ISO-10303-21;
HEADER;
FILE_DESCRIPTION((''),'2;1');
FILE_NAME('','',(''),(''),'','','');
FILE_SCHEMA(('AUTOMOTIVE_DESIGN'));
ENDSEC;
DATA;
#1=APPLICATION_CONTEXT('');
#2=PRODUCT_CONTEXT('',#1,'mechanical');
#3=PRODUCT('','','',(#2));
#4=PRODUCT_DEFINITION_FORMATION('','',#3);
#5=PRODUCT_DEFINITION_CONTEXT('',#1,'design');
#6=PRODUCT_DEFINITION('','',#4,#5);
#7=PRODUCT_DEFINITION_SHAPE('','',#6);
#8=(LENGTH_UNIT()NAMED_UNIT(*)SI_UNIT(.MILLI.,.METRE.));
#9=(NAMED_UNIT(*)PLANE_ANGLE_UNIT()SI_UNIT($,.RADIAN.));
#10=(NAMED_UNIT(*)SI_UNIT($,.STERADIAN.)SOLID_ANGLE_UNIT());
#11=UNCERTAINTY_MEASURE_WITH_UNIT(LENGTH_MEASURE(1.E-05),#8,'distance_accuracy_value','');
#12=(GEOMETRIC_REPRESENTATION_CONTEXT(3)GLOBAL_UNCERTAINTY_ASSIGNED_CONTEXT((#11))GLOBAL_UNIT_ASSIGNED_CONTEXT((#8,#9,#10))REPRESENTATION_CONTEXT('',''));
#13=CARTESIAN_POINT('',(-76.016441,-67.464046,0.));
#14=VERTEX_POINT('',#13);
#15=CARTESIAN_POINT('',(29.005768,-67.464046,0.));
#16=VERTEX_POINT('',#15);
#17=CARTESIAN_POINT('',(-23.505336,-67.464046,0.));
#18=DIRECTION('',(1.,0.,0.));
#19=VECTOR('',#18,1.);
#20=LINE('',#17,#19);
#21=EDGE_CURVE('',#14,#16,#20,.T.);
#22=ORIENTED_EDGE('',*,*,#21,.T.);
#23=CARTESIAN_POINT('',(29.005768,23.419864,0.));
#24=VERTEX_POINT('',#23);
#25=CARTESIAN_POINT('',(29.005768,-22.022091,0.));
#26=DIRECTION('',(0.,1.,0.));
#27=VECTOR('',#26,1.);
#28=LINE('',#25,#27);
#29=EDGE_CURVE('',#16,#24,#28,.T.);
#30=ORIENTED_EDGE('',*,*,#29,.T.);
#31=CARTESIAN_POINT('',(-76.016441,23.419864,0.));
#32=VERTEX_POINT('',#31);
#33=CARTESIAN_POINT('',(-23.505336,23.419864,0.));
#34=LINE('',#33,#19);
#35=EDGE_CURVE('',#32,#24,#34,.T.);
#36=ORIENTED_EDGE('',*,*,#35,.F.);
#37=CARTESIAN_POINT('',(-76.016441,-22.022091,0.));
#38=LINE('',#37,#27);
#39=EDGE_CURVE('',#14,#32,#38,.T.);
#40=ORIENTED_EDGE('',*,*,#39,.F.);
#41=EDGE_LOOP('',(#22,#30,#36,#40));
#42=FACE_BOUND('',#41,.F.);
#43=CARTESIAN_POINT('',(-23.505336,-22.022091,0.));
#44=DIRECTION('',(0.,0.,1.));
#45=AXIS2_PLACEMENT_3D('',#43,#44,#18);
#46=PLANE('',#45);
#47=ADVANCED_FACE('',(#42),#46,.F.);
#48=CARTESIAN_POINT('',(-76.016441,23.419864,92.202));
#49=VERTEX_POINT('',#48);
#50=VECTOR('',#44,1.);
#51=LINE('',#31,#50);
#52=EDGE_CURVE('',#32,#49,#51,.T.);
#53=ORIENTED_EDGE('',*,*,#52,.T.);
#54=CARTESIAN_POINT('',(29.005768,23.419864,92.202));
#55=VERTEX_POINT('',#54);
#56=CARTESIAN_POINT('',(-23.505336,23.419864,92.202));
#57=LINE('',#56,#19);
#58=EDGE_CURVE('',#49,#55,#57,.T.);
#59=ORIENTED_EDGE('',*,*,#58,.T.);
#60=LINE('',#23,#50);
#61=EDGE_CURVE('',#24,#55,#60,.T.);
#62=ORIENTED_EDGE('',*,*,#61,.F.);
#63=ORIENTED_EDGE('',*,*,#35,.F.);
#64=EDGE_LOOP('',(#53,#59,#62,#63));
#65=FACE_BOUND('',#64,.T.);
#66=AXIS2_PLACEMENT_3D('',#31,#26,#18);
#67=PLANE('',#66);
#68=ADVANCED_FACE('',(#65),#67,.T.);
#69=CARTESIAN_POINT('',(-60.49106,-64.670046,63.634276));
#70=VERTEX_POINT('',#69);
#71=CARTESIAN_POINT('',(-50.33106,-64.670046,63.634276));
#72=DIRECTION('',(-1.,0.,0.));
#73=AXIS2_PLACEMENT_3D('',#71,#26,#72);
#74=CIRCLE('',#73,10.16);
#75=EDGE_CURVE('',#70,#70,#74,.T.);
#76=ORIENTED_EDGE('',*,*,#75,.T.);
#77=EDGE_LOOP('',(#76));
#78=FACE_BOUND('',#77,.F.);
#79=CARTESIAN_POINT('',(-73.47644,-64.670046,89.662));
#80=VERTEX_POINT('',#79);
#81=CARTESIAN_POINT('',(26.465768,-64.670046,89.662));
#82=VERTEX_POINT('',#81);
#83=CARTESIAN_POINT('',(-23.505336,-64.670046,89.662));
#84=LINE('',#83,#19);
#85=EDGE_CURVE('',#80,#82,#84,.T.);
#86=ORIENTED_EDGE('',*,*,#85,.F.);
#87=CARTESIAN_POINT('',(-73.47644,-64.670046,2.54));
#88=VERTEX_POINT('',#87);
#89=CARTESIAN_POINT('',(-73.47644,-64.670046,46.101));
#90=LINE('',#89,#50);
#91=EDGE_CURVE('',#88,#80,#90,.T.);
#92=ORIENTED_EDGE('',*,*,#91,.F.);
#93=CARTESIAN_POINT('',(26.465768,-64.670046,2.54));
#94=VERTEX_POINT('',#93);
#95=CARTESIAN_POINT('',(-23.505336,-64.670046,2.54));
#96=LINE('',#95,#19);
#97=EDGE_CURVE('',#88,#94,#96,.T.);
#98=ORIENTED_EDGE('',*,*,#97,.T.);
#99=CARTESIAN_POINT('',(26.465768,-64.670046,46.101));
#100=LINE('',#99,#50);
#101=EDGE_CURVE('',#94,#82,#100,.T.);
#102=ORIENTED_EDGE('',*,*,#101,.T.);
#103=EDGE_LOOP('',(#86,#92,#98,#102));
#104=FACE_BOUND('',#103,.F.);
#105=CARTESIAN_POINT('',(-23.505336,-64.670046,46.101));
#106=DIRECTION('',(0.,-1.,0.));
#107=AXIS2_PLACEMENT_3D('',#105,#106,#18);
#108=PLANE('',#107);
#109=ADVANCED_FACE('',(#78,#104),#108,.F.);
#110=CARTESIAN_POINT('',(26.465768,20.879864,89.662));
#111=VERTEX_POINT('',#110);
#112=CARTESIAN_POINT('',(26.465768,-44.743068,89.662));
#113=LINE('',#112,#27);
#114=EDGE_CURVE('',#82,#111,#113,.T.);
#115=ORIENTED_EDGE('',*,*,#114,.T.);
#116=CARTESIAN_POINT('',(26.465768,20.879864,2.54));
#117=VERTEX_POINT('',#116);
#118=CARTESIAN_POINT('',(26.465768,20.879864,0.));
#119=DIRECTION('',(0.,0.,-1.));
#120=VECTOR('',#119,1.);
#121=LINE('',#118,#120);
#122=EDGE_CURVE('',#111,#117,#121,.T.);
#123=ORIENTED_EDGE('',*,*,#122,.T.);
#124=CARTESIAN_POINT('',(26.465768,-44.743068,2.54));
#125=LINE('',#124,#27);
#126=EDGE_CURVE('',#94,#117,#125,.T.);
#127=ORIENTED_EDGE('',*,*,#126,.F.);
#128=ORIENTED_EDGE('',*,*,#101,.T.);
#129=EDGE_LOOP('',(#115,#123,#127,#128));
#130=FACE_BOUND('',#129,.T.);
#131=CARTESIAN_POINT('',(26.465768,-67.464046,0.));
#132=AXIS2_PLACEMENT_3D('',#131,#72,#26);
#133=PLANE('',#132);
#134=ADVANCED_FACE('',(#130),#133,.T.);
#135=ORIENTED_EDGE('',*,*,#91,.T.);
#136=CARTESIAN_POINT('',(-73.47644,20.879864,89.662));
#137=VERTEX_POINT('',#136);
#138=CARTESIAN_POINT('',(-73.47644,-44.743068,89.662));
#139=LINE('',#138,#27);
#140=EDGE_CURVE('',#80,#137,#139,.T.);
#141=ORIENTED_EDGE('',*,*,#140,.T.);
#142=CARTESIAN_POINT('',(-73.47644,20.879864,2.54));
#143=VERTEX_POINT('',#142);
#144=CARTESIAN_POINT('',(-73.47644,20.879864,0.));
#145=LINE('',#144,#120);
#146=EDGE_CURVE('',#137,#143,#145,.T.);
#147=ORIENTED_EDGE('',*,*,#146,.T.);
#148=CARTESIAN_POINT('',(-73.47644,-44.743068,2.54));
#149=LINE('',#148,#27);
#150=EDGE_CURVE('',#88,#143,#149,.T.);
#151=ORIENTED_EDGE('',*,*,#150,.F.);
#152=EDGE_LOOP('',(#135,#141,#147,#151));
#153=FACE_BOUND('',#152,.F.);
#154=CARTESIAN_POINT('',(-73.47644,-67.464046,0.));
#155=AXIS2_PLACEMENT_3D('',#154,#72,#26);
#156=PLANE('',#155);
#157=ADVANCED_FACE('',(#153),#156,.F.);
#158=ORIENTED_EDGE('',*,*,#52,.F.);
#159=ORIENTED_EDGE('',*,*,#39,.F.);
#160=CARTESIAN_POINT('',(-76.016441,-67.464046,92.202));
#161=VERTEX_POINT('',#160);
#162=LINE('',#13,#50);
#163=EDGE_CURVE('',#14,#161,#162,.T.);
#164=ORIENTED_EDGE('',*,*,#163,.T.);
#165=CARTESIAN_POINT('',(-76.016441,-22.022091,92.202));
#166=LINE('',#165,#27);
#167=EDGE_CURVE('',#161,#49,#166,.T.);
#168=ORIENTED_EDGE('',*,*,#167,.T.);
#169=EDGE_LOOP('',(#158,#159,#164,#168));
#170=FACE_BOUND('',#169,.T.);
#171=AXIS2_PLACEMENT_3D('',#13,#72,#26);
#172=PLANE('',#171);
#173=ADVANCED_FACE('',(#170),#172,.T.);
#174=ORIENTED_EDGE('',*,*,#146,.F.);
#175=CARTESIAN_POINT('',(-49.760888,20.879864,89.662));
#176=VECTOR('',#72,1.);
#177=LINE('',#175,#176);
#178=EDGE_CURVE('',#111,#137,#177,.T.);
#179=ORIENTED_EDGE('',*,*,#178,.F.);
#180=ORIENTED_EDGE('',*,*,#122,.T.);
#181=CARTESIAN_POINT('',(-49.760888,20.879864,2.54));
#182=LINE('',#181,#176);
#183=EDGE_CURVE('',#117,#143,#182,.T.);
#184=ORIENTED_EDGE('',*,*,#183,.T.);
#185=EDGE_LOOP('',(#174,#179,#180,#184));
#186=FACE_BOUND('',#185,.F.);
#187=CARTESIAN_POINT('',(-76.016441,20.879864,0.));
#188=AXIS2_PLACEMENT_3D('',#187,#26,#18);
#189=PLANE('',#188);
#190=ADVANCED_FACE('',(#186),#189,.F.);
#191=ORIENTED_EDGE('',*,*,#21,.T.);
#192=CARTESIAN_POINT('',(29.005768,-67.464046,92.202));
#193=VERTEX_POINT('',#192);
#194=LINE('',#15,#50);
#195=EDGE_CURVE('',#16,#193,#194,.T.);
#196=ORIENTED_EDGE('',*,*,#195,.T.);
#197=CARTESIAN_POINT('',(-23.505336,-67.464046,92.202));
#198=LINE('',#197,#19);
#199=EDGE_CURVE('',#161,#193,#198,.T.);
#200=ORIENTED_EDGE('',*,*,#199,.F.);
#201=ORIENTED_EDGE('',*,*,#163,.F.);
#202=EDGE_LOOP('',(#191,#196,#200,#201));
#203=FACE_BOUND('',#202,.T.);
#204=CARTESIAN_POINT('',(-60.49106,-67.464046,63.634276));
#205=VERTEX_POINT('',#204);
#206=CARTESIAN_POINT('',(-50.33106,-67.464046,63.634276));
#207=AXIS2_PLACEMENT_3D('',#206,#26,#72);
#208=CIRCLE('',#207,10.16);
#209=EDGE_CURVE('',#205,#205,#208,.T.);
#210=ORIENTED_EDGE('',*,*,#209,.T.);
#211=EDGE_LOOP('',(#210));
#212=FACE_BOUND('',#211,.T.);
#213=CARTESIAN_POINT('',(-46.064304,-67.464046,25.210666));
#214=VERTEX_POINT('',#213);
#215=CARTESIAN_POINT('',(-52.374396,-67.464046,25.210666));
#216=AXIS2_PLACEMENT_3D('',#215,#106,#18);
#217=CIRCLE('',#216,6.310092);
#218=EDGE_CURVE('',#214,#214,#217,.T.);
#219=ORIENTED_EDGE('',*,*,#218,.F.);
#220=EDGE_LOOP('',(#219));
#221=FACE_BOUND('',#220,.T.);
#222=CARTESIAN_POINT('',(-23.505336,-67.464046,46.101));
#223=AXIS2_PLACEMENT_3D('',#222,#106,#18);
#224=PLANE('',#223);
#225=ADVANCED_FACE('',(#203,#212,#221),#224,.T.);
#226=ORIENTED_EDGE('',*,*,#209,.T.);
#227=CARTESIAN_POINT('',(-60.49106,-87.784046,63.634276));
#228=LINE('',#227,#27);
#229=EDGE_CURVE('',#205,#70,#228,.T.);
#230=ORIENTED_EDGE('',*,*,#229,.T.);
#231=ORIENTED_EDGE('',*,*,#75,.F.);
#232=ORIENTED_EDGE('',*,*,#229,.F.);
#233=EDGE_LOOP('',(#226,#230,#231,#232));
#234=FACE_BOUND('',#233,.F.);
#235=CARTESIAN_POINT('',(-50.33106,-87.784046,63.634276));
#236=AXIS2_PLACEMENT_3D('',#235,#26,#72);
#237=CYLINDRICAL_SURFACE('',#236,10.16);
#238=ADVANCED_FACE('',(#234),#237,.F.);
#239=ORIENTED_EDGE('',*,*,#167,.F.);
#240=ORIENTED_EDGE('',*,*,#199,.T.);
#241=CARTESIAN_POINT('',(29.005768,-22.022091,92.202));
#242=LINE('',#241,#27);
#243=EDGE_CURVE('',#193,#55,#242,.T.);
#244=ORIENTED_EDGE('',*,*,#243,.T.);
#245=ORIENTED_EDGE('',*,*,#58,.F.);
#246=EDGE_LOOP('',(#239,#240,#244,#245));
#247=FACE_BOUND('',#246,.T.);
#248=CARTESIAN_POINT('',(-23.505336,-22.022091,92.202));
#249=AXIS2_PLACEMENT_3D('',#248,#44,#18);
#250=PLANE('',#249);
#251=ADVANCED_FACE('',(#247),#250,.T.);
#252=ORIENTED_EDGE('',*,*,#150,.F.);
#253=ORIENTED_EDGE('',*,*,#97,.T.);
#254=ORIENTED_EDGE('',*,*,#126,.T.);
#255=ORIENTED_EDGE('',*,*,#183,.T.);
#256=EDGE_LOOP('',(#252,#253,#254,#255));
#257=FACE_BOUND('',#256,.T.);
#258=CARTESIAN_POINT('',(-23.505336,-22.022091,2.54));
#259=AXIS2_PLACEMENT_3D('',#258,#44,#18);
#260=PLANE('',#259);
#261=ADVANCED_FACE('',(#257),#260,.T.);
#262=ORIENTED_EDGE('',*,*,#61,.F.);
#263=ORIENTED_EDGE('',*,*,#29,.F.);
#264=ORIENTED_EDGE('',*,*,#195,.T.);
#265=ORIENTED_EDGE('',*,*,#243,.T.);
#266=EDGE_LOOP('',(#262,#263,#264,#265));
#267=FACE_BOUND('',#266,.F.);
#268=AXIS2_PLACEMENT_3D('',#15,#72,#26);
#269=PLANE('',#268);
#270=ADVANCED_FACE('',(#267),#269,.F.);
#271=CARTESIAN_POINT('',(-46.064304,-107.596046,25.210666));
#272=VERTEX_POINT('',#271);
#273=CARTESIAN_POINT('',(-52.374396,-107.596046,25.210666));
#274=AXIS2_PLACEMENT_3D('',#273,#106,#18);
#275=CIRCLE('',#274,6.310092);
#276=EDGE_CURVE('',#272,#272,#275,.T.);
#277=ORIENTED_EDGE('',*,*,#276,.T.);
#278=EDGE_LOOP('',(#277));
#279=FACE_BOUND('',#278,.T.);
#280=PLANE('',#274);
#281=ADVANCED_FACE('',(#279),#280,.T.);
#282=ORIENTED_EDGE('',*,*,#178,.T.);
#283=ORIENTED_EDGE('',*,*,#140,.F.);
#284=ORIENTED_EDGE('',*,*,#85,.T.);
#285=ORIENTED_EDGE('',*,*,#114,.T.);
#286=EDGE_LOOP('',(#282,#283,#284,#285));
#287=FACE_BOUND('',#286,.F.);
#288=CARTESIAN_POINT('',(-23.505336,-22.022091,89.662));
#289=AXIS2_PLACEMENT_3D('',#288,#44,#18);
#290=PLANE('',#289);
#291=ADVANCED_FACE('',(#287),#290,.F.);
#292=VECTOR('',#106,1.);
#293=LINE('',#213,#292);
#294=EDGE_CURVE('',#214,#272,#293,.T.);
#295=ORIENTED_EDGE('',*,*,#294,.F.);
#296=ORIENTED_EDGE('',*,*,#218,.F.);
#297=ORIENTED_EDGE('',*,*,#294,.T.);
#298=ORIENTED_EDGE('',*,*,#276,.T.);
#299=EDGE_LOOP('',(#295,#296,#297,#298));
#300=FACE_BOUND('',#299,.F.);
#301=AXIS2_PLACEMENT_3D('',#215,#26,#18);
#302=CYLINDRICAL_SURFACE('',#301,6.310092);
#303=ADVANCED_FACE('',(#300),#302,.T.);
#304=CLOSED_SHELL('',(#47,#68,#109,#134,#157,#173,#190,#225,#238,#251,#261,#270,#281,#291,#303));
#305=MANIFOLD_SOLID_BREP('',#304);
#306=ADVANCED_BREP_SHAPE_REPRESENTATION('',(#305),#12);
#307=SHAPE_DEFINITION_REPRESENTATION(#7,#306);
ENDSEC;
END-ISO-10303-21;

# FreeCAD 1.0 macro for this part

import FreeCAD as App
import Part
import Sketcher

V = App.Vector
Q = App.Units.Quantity


def faces_at(feature, points):
    """Names of the faces that lie closest to the given points."""
    faces = feature.Shape.Faces
    near = lambda p: min(range(len(faces)), key=lambda i: faces[i].distToShape(Part.Vertex(*p))[0])
    return sorted({f"Face{near(p) + 1}" for p in points})

doc = App.newDocument("Part")
body = doc.addObject("PartDesign::Body", "Body")

# Sketch on XY plane
sketch1 = doc.addObject("Sketcher::SketchObject", "Sketch")
body.addObject(sketch1)
sketch1.AttachmentSupport = (doc.XY_Plane, [""])
sketch1.MapMode = "FlatFace"
sketch1.addGeometry(Part.LineSegment(V(-76, 23, 0), V(-76, -67, 0)), False)
sketch1.addGeometry(Part.LineSegment(V(-76, -67, 0), V(29, -67, 0)), False)
sketch1.addGeometry(Part.LineSegment(V(29, -67, 0), V(29, 23, 0)), False)
sketch1.addGeometry(Part.LineSegment(V(29, 23, 0), V(-76, 23, 0)), False)
sketch1.addConstraint(Sketcher.Constraint("Coincident", 0, 2, 1, 1))
sketch1.addConstraint(Sketcher.Constraint("Coincident", 1, 2, 2, 1))
sketch1.addConstraint(Sketcher.Constraint("Coincident", 2, 2, 3, 1))
sketch1.addConstraint(Sketcher.Constraint("Coincident", 3, 2, 0, 1))
sketch1.addConstraint(Sketcher.Constraint("Vertical", 0))
sketch1.addConstraint(Sketcher.Constraint("Horizontal", 1))
sketch1.addConstraint(Sketcher.Constraint("Vertical", 2))
sketch1.addConstraint(Sketcher.Constraint("Horizontal", 3))
sketch1.addConstraint(Sketcher.Constraint("DistanceX", 1, 1, 1, 2, 105.022209))
sketch1.addConstraint(Sketcher.Constraint("DistanceY", 0, 2, 0, 1, 90.88391))
sketch1.addConstraint(Sketcher.Constraint("DistanceX", 0, 2, -1, 1, 76.016441))
sketch1.addConstraint(Sketcher.Constraint("DistanceY", 0, 2, -1, 1, 67.464046))
pad1 = doc.addObject("PartDesign::Pad", "Pad")
body.addObject(pad1)
pad1.Profile = sketch1
pad1.Length = Q("3.63 in")
doc.recompute()

thickness = doc.addObject("PartDesign::Thickness", "Thickness")
body.addObject(thickness)
thickness.Base = (pad1, faces_at(pad1, [(-23.505, -67.464, 46.101)]))
thickness.Value = Q("0.1 in")
thickness.Reversed = True
thickness.Join = "Arc"

# Sketch on XZ plane
sketch2 = doc.addObject("Sketcher::SketchObject", "Sketch001")
body.addObject(sketch2)
sketch2.AttachmentSupport = (doc.XZ_Plane, [""])
sketch2.MapMode = "FlatFace"
sketch2.AttachmentOffset = App.Placement(V(0, 0, 67.464046), App.Rotation())
sketch2.addGeometry(Part.LineSegment(V(-73, 90, 0), V(-73, 3, 0)), False)
sketch2.addGeometry(Part.LineSegment(V(-73, 3, 0), V(26, 3, 0)), False)
sketch2.addGeometry(Part.LineSegment(V(26, 3, 0), V(26, 90, 0)), False)
sketch2.addGeometry(Part.LineSegment(V(26, 90, 0), V(-73, 90, 0)), False)
sketch2.addConstraint(Sketcher.Constraint("Coincident", 0, 2, 1, 1))
sketch2.addConstraint(Sketcher.Constraint("Coincident", 1, 2, 2, 1))
sketch2.addConstraint(Sketcher.Constraint("Coincident", 2, 2, 3, 1))
sketch2.addConstraint(Sketcher.Constraint("Coincident", 3, 2, 0, 1))
sketch2.addConstraint(Sketcher.Constraint("Vertical", 0))
sketch2.addConstraint(Sketcher.Constraint("Horizontal", 1))
sketch2.addConstraint(Sketcher.Constraint("Vertical", 2))
sketch2.addConstraint(Sketcher.Constraint("Horizontal", 3))
sketch2.addConstraint(Sketcher.Constraint("DistanceY", 0, 2, 0, 1, Q("3.43 in")))
sketch2.addConstraint(Sketcher.Constraint("DistanceY", -1, 1, 0, 2, Q("0.1 in")))
sketch2.addConstraint(Sketcher.Constraint("DistanceX", 1, 1, 1, 2, 99.942209))
sketch2.addConstraint(Sketcher.Constraint("DistanceX", 0, 2, -1, 1, 73.47644))
pad2 = doc.addObject("PartDesign::Pad", "Pad001")
body.addObject(pad2)
pad2.Profile = sketch2
pad2.Length = Q("0.11 in")
pad2.Reversed = True

# Sketch on XZ plane
sketch3 = doc.addObject("Sketcher::SketchObject", "Sketch002")
body.addObject(sketch3)
sketch3.AttachmentSupport = (doc.XZ_Plane, [""])
sketch3.MapMode = "FlatFace"
sketch3.AttachmentOffset = App.Placement(V(0, 0, 67.464046), App.Rotation())
sketch3.addGeometry(Part.Circle(V(-50, 64, 0), V(0, 0, 1), 10), False)
sketch3.addConstraint(Sketcher.Constraint("Diameter", 0, Q("0.8 in")))
sketch3.addConstraint(Sketcher.Constraint("DistanceX", 0, 3, -1, 1, 50.33106))
sketch3.addConstraint(Sketcher.Constraint("DistanceY", -1, 1, 0, 3, 63.634276))
doc.recompute()
hole = doc.addObject("PartDesign::Hole", "Hole")
body.addObject(hole)
hole.Profile = sketch3
hole.ThreadType = "None"
hole.Diameter = Q("0.8 in")
hole.DepthType = "Dimension"
hole.Depth = Q("0.8 in")
hole.DrillPoint = "Flat"

# Sketch on XZ plane
sketch4 = doc.addObject("Sketcher::SketchObject", "Sketch003")
body.addObject(sketch4)
sketch4.AttachmentSupport = (doc.XZ_Plane, [""])
sketch4.MapMode = "FlatFace"
sketch4.AttachmentOffset = App.Placement(V(0, 0, 67.464046), App.Rotation())
sketch4.addGeometry(Part.Circle(V(-52, 25, 0), V(0, 0, 1), 6), False)
sketch4.addConstraint(Sketcher.Constraint("Diameter", 0, 12.620184))
sketch4.addConstraint(Sketcher.Constraint("DistanceX", 0, 3, -1, 1, 52.374396))
sketch4.addConstraint(Sketcher.Constraint("DistanceY", -1, 1, 0, 3, 25.210666))
pad3 = doc.addObject("PartDesign::Pad", "Pad002")
body.addObject(pad3)
pad3.Profile = sketch4
pad3.Length = Q("1.58 in")

doc.recompute()
